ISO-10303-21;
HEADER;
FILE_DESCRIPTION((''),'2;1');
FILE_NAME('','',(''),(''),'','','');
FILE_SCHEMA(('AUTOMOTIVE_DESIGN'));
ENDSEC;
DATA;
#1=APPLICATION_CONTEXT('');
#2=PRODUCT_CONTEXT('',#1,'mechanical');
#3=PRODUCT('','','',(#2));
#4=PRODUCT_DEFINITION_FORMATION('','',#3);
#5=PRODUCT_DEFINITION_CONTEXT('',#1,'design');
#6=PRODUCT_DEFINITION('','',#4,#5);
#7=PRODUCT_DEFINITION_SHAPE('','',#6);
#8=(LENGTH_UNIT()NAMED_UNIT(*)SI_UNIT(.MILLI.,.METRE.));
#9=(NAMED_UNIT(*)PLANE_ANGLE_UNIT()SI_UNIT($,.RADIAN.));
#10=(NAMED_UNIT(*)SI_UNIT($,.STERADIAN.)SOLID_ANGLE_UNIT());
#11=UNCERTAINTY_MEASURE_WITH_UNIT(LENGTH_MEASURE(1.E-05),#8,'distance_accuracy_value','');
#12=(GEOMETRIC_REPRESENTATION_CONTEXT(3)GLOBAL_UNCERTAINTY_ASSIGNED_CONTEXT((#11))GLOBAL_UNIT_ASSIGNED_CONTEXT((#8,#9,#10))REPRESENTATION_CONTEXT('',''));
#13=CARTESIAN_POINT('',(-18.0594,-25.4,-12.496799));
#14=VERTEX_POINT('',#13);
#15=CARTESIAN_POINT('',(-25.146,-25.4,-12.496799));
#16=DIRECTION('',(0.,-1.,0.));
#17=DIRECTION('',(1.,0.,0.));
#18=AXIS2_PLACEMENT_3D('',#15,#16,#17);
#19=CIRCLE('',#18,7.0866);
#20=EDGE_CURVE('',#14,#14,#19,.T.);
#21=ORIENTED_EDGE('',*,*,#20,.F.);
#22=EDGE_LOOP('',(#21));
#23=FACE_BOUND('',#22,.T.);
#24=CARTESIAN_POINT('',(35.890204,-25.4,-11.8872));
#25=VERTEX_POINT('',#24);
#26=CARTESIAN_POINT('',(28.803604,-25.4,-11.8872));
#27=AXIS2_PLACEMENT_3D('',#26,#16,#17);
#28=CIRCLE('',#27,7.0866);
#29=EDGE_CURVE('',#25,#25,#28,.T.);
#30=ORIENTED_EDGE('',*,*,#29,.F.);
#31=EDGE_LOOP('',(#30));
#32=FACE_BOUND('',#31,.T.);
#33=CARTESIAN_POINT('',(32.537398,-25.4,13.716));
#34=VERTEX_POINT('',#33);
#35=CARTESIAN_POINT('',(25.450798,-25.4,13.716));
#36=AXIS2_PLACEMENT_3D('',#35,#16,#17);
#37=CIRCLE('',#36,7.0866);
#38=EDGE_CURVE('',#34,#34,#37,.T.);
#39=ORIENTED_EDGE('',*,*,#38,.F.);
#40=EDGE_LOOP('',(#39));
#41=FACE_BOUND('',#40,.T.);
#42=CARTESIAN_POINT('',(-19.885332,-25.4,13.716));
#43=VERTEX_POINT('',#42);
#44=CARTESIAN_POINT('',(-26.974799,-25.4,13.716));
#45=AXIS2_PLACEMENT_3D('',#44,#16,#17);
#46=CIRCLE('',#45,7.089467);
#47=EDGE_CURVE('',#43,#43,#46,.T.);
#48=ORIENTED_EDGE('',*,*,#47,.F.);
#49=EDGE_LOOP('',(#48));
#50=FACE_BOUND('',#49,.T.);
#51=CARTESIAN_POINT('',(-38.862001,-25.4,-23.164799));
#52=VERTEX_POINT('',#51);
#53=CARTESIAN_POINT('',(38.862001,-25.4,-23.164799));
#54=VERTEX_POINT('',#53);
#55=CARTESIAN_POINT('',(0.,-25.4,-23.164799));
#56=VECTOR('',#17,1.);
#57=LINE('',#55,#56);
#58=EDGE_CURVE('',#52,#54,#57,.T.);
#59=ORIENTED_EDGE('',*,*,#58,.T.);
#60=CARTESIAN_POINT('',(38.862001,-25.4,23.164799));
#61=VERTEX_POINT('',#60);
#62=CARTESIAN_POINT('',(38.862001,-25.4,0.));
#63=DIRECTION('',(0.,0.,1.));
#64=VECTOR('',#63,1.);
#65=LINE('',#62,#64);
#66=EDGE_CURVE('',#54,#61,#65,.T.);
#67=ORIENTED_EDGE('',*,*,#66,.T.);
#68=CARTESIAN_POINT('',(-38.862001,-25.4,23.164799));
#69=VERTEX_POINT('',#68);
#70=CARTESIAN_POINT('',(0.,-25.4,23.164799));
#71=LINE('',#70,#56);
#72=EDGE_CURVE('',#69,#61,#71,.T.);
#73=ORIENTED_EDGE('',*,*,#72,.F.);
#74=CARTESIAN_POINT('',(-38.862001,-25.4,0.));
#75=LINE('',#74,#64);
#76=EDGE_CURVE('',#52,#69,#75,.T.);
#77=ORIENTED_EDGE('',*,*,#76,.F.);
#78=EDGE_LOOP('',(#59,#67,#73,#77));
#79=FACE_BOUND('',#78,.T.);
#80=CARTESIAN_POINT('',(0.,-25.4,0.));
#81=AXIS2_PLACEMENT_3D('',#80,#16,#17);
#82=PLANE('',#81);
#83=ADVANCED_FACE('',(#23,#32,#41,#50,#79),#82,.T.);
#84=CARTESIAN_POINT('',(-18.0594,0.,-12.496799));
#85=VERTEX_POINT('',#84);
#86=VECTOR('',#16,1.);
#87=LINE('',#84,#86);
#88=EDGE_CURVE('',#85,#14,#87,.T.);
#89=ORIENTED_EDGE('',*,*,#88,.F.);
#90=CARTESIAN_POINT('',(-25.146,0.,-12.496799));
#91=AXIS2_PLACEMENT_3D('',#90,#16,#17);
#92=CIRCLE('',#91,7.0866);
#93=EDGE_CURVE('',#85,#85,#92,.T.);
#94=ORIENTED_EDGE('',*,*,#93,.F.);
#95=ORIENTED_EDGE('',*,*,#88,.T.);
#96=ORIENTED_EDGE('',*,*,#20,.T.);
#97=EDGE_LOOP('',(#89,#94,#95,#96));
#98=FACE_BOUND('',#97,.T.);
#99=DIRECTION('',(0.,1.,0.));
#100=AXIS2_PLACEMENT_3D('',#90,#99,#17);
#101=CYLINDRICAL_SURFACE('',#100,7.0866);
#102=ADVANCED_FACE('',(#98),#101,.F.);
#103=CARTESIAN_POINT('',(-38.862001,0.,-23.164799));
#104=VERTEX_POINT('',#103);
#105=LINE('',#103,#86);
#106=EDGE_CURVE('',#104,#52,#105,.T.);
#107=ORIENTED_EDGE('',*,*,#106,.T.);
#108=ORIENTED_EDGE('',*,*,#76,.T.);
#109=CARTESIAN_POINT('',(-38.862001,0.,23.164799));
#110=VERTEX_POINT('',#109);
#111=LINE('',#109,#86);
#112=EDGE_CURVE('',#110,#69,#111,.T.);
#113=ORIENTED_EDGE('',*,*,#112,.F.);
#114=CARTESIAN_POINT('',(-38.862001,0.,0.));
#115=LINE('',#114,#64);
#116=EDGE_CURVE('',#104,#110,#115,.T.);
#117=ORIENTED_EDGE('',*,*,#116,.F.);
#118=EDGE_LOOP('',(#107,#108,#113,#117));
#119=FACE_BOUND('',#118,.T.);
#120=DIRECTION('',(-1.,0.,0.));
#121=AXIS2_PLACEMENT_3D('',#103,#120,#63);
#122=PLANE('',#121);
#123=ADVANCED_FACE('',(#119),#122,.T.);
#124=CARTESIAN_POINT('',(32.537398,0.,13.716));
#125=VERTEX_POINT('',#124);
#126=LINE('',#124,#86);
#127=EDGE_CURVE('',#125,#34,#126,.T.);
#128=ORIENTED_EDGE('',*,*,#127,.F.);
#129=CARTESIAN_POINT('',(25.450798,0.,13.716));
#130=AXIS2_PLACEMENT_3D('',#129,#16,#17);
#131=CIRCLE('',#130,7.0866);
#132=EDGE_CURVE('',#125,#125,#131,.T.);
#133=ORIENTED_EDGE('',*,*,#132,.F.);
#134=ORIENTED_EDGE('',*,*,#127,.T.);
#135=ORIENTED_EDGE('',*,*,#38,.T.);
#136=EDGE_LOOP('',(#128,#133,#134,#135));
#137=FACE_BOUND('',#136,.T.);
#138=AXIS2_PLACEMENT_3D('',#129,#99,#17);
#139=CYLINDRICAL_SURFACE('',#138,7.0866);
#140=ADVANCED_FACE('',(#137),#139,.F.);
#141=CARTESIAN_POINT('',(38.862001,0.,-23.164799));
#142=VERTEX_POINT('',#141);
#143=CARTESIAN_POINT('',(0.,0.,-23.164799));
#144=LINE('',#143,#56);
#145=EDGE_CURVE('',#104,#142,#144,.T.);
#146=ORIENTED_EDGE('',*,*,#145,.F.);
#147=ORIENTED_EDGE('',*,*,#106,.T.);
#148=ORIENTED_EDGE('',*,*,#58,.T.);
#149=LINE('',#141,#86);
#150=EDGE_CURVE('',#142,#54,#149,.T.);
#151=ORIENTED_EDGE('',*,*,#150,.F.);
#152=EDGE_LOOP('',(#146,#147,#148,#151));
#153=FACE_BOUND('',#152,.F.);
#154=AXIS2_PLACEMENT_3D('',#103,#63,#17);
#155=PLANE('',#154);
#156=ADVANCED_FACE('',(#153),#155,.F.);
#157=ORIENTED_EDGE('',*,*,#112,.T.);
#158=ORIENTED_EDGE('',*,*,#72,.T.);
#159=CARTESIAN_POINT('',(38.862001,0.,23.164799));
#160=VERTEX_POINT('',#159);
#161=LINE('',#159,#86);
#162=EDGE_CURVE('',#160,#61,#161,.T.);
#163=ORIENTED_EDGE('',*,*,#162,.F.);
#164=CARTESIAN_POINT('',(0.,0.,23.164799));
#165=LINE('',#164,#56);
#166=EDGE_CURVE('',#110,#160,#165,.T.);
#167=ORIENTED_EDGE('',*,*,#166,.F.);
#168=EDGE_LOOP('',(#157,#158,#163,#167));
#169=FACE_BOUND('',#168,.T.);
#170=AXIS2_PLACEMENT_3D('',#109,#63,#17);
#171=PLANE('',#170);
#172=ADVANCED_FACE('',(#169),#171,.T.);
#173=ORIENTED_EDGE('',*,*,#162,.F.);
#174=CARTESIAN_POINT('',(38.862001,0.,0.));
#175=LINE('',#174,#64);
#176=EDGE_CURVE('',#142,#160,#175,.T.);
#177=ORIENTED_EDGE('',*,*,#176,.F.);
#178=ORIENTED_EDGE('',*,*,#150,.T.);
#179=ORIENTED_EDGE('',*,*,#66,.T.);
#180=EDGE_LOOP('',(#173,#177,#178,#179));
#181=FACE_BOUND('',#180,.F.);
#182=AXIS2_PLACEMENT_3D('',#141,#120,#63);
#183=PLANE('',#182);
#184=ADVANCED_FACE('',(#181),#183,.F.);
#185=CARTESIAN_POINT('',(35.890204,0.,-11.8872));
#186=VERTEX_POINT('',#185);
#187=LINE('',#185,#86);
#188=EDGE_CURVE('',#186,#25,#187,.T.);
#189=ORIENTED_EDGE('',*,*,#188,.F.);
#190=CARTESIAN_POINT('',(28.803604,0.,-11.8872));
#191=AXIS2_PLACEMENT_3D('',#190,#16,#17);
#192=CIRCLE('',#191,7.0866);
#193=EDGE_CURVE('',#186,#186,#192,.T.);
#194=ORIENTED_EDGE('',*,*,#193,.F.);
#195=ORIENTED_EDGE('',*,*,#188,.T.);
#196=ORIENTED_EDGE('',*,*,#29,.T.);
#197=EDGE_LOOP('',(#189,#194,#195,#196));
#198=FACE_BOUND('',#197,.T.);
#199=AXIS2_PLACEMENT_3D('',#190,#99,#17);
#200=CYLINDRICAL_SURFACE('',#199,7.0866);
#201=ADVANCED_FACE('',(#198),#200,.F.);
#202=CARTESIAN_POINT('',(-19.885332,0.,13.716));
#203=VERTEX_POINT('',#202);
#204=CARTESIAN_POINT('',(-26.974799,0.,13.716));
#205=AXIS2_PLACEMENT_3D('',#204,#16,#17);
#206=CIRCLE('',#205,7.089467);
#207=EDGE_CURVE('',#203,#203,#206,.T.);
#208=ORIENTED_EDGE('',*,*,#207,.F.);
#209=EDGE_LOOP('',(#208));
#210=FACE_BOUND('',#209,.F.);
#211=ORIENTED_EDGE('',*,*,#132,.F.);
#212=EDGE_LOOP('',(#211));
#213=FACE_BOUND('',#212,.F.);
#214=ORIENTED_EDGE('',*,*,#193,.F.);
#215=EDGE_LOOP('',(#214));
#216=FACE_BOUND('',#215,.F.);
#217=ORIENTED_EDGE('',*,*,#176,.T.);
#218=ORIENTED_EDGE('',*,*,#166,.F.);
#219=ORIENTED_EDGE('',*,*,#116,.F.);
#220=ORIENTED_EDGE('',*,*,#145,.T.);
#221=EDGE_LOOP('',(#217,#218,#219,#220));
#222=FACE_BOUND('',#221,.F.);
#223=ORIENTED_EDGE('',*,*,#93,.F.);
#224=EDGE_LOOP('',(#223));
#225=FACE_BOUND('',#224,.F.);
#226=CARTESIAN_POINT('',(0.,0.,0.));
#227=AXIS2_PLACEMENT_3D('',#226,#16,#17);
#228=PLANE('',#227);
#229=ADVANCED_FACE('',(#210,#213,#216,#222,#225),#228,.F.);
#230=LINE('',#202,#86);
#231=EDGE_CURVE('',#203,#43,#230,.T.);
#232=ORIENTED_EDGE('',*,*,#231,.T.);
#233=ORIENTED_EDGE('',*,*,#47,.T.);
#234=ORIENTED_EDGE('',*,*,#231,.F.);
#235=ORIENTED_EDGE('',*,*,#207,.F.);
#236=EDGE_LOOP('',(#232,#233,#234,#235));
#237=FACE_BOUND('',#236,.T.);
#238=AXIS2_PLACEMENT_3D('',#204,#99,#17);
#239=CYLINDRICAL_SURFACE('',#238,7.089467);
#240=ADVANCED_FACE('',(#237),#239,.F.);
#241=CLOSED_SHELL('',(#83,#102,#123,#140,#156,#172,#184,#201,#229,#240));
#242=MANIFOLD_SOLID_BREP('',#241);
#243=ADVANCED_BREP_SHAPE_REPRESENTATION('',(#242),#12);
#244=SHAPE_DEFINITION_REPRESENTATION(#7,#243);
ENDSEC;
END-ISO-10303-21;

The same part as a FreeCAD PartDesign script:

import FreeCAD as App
import Part
import Sketcher
Q = App.Units.Quantity


def add_polygon(sketch, points):
    """Adds a closed chain of lines whose ends are joined by coincident constraints."""
    first, n = sketch.GeometryCount, len(points)
    for a, b in zip(points, points[1:] + points[:1]):
        sketch.addGeometry(Part.LineSegment(App.Vector(*a, 0), App.Vector(*b, 0)), False)
    for i in range(n):
        sketch.addConstraint(Sketcher.Constraint("Coincident", first + i, 2, first + (i + 1) % n, 1))

doc = App.newDocument("Part")
body = doc.addObject("PartDesign::Body", "Body")

# Sketch on XZ plane
sketch1 = body.newObject("Sketcher::SketchObject", "Sketch")
sketch1.AttachmentSupport = (doc.getObject("XZ_Plane"), [""])
sketch1.MapMode = "FlatFace"
add_polygon(sketch1, [(-38.862001, 23.164799), (-38.862001, -23.164799), (38.862001, -23.164799), (38.862001, 23.164799)])  # lines 0-3
sketch1.addGeometry(Part.Circle(App.Vector(-25.146, -12.496799, 0), App.Vector(0, 0, 1), 7.0866), False)  # 4
sketch1.addGeometry(Part.Circle(App.Vector(28.803604, -11.8872, 0), App.Vector(0, 0, 1), 7.0866), False)  # 5
sketch1.addGeometry(Part.Circle(App.Vector(-26.974799, 13.716, 0), App.Vector(0, 0, 1), 7.089467), False)  # 6
sketch1.addGeometry(Part.Circle(App.Vector(25.450798, 13.716, 0), App.Vector(0, 0, 1), 7.0866), False)  # 7
sketch1.addConstraint(Sketcher.Constraint("Vertical", 0))
sketch1.addConstraint(Sketcher.Constraint("Horizontal", 1))
sketch1.addConstraint(Sketcher.Constraint("Vertical", 2))
sketch1.addConstraint(Sketcher.Constraint("Horizontal", 3))
sketch1.addConstraint(Sketcher.Constraint("Equal", 4, 5))
sketch1.addConstraint(Sketcher.Constraint("Equal", 5, 7))
sketch1.addConstraint(Sketcher.Constraint("Symmetric", 0, 2, 2, 2, -1, 1))
sketch1.addConstraint(Sketcher.Constraint("Horizontal", 6, 3, 7, 3))
sketch1.addConstraint(Sketcher.Constraint("Diameter", 4, Q("0.558 in")))
sketch1.addConstraint(Sketcher.Constraint("DistanceX", 1, 1, 1, 2, Q("3.0600001 in")))
sketch1.addConstraint(Sketcher.Constraint("DistanceY", 0, 2, 0, 1, Q("1.8239999 in")))
sketch1.addConstraint(Sketcher.Constraint("DistanceX", 4, 3, -1, 1, Q("0.99 in")))
sketch1.addConstraint(Sketcher.Constraint("DistanceY", -1, 1, 6, 3, Q("0.54 in")))
sketch1.addConstraint(Sketcher.Constraint("DistanceY", 0, 2, 4, 3, Q("0.42 in")))
sketch1.addConstraint(Sketcher.Constraint("DistanceY", 5, 3, 2, 2, Q("1.38 in")))
sketch1.addConstraint(Sketcher.Constraint("DistanceX", -1, 1, 5, 3, Q("1.1340002 in")))
sketch1.addConstraint(Sketcher.Constraint("DistanceX", 6, 3, -1, 1, Q("1.062 in")))
sketch1.addConstraint(Sketcher.Constraint("DistanceX", -1, 1, 7, 3, Q("1.0019999 in")))
sketch1.addConstraint(Sketcher.Constraint("Diameter", 6, Q("14.178934 mm")))
pad1 = body.newObject("PartDesign::Pad", "Pad")
pad1.Profile = sketch1
pad1.Length = Q("1 in")

doc.recompute()
